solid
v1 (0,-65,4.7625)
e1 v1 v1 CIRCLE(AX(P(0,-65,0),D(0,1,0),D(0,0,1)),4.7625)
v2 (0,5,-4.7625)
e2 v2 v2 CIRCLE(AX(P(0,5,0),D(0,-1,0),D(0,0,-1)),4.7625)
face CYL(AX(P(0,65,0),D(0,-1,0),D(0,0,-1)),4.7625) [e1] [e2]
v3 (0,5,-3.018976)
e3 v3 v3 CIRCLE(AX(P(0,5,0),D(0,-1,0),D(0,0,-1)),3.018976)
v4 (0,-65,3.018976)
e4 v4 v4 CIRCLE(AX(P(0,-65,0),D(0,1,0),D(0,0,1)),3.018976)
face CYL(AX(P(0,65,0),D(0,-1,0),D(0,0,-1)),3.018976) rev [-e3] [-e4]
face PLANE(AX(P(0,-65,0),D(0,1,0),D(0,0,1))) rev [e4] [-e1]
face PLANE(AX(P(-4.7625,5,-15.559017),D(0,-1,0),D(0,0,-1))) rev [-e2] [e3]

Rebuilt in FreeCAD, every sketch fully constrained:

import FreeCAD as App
import Part
import Sketcher
from FreeCAD import Vector

doc = App.newDocument("Part")
params = doc.addObject("Spreadsheet::Sheet", "Params")
for row, (alias, value) in enumerate([
    ("pad1_length", "130 mm"),
], start=1):
    params.set(f"A{row}", alias)
    params.set(f"B{row}", "=" + value)
    params.setAlias(f"B{row}", alias)

body = doc.addObject("PartDesign::Body", "Body")

# Sketch on XZ plane
sketch1 = body.newObject("Sketcher::SketchObject", "Sketch")
sketch1.AttachmentSupport = (doc.getObject("XZ_Plane"), [""])
sketch1.MapMode = "FlatFace"
sketch1.addGeometry(Part.Circle(Vector(0, 0, 0), Vector(0, 0, 1), 4.7625), False)
sketch1.addGeometry(Part.Circle(Vector(0, 0, 0), Vector(0, 0, 1), 3.018976), False)
sketch1.addConstraint(Sketcher.Constraint("Coincident", 0, 3, -1, 1))
sketch1.addConstraint(Sketcher.Constraint("Coincident", 1, 3, -1, 1))
sketch1.addConstraint(Sketcher.Constraint("Diameter", 0, 9.525))
sketch1.addConstraint(Sketcher.Constraint("Diameter", 1, 6.037953))
pad1 = body.newObject("PartDesign::Pad", "Pad")
pad1.Profile = sketch1
pad1.setExpression("Length", "Params.pad1_length")
pad1.Midplane = True

# Sketch on YZ plane
sketch2 = body.newObject("Sketcher::SketchObject", "Sketch001")
sketch2.AttachmentSupport = (doc.getObject("YZ_Plane"), [""])
sketch2.MapMode = "FlatFace"
sketch2.addGeometry(Part.LineSegment(Vector(86.397779, 20.914036, 0), Vector(5, 20.914036, 0)), False)
sketch2.addGeometry(Part.LineSegment(Vector(5, 20.914036, 0), Vector(5, -15.559017, 0)), False)
sketch2.addGeometry(Part.LineSegment(Vector(5, -15.559017, 0), Vector(86.397779, -15.559017, 0)), False)
sketch2.addGeometry(Part.LineSegment(Vector(86.397779, -15.559017, 0), Vector(86.397779, 20.914036, 0)), False)
sketch2.addConstraint(Sketcher.Constraint("Coincident", 0, 2, 1, 1))
sketch2.addConstraint(Sketcher.Constraint("Coincident", 1, 2, 2, 1))
sketch2.addConstraint(Sketcher.Constraint("Coincident", 2, 2, 3, 1))
sketch2.addConstraint(Sketcher.Constraint("Coincident", 3, 2, 0, 1))
sketch2.addConstraint(Sketcher.Constraint("Horizontal", 0))
sketch2.addConstraint(Sketcher.Constraint("Vertical", 1))
sketch2.addConstraint(Sketcher.Constraint("Horizontal", 2))
sketch2.addConstraint(Sketcher.Constraint("Vertical", 3))
sketch2.addConstraint(Sketcher.Constraint("DistanceX", -1, 1, 0, 2, 5.0))
sketch2.addConstraint(Sketcher.Constraint("DistanceX", 0, 2, 0, 1, 81.397779))
sketch2.addConstraint(Sketcher.Constraint("DistanceY", 1, 2, 1, 1, 36.473053))
sketch2.addConstraint(Sketcher.Constraint("DistanceY", -1, 1, 0, 2, 20.914036))
pocket1 = body.newObject("PartDesign::Pocket", "Pocket")
pocket1.Profile = sketch2
pocket1.Type = "ThroughAll"
pocket1.Midplane = True

doc.recompute()
